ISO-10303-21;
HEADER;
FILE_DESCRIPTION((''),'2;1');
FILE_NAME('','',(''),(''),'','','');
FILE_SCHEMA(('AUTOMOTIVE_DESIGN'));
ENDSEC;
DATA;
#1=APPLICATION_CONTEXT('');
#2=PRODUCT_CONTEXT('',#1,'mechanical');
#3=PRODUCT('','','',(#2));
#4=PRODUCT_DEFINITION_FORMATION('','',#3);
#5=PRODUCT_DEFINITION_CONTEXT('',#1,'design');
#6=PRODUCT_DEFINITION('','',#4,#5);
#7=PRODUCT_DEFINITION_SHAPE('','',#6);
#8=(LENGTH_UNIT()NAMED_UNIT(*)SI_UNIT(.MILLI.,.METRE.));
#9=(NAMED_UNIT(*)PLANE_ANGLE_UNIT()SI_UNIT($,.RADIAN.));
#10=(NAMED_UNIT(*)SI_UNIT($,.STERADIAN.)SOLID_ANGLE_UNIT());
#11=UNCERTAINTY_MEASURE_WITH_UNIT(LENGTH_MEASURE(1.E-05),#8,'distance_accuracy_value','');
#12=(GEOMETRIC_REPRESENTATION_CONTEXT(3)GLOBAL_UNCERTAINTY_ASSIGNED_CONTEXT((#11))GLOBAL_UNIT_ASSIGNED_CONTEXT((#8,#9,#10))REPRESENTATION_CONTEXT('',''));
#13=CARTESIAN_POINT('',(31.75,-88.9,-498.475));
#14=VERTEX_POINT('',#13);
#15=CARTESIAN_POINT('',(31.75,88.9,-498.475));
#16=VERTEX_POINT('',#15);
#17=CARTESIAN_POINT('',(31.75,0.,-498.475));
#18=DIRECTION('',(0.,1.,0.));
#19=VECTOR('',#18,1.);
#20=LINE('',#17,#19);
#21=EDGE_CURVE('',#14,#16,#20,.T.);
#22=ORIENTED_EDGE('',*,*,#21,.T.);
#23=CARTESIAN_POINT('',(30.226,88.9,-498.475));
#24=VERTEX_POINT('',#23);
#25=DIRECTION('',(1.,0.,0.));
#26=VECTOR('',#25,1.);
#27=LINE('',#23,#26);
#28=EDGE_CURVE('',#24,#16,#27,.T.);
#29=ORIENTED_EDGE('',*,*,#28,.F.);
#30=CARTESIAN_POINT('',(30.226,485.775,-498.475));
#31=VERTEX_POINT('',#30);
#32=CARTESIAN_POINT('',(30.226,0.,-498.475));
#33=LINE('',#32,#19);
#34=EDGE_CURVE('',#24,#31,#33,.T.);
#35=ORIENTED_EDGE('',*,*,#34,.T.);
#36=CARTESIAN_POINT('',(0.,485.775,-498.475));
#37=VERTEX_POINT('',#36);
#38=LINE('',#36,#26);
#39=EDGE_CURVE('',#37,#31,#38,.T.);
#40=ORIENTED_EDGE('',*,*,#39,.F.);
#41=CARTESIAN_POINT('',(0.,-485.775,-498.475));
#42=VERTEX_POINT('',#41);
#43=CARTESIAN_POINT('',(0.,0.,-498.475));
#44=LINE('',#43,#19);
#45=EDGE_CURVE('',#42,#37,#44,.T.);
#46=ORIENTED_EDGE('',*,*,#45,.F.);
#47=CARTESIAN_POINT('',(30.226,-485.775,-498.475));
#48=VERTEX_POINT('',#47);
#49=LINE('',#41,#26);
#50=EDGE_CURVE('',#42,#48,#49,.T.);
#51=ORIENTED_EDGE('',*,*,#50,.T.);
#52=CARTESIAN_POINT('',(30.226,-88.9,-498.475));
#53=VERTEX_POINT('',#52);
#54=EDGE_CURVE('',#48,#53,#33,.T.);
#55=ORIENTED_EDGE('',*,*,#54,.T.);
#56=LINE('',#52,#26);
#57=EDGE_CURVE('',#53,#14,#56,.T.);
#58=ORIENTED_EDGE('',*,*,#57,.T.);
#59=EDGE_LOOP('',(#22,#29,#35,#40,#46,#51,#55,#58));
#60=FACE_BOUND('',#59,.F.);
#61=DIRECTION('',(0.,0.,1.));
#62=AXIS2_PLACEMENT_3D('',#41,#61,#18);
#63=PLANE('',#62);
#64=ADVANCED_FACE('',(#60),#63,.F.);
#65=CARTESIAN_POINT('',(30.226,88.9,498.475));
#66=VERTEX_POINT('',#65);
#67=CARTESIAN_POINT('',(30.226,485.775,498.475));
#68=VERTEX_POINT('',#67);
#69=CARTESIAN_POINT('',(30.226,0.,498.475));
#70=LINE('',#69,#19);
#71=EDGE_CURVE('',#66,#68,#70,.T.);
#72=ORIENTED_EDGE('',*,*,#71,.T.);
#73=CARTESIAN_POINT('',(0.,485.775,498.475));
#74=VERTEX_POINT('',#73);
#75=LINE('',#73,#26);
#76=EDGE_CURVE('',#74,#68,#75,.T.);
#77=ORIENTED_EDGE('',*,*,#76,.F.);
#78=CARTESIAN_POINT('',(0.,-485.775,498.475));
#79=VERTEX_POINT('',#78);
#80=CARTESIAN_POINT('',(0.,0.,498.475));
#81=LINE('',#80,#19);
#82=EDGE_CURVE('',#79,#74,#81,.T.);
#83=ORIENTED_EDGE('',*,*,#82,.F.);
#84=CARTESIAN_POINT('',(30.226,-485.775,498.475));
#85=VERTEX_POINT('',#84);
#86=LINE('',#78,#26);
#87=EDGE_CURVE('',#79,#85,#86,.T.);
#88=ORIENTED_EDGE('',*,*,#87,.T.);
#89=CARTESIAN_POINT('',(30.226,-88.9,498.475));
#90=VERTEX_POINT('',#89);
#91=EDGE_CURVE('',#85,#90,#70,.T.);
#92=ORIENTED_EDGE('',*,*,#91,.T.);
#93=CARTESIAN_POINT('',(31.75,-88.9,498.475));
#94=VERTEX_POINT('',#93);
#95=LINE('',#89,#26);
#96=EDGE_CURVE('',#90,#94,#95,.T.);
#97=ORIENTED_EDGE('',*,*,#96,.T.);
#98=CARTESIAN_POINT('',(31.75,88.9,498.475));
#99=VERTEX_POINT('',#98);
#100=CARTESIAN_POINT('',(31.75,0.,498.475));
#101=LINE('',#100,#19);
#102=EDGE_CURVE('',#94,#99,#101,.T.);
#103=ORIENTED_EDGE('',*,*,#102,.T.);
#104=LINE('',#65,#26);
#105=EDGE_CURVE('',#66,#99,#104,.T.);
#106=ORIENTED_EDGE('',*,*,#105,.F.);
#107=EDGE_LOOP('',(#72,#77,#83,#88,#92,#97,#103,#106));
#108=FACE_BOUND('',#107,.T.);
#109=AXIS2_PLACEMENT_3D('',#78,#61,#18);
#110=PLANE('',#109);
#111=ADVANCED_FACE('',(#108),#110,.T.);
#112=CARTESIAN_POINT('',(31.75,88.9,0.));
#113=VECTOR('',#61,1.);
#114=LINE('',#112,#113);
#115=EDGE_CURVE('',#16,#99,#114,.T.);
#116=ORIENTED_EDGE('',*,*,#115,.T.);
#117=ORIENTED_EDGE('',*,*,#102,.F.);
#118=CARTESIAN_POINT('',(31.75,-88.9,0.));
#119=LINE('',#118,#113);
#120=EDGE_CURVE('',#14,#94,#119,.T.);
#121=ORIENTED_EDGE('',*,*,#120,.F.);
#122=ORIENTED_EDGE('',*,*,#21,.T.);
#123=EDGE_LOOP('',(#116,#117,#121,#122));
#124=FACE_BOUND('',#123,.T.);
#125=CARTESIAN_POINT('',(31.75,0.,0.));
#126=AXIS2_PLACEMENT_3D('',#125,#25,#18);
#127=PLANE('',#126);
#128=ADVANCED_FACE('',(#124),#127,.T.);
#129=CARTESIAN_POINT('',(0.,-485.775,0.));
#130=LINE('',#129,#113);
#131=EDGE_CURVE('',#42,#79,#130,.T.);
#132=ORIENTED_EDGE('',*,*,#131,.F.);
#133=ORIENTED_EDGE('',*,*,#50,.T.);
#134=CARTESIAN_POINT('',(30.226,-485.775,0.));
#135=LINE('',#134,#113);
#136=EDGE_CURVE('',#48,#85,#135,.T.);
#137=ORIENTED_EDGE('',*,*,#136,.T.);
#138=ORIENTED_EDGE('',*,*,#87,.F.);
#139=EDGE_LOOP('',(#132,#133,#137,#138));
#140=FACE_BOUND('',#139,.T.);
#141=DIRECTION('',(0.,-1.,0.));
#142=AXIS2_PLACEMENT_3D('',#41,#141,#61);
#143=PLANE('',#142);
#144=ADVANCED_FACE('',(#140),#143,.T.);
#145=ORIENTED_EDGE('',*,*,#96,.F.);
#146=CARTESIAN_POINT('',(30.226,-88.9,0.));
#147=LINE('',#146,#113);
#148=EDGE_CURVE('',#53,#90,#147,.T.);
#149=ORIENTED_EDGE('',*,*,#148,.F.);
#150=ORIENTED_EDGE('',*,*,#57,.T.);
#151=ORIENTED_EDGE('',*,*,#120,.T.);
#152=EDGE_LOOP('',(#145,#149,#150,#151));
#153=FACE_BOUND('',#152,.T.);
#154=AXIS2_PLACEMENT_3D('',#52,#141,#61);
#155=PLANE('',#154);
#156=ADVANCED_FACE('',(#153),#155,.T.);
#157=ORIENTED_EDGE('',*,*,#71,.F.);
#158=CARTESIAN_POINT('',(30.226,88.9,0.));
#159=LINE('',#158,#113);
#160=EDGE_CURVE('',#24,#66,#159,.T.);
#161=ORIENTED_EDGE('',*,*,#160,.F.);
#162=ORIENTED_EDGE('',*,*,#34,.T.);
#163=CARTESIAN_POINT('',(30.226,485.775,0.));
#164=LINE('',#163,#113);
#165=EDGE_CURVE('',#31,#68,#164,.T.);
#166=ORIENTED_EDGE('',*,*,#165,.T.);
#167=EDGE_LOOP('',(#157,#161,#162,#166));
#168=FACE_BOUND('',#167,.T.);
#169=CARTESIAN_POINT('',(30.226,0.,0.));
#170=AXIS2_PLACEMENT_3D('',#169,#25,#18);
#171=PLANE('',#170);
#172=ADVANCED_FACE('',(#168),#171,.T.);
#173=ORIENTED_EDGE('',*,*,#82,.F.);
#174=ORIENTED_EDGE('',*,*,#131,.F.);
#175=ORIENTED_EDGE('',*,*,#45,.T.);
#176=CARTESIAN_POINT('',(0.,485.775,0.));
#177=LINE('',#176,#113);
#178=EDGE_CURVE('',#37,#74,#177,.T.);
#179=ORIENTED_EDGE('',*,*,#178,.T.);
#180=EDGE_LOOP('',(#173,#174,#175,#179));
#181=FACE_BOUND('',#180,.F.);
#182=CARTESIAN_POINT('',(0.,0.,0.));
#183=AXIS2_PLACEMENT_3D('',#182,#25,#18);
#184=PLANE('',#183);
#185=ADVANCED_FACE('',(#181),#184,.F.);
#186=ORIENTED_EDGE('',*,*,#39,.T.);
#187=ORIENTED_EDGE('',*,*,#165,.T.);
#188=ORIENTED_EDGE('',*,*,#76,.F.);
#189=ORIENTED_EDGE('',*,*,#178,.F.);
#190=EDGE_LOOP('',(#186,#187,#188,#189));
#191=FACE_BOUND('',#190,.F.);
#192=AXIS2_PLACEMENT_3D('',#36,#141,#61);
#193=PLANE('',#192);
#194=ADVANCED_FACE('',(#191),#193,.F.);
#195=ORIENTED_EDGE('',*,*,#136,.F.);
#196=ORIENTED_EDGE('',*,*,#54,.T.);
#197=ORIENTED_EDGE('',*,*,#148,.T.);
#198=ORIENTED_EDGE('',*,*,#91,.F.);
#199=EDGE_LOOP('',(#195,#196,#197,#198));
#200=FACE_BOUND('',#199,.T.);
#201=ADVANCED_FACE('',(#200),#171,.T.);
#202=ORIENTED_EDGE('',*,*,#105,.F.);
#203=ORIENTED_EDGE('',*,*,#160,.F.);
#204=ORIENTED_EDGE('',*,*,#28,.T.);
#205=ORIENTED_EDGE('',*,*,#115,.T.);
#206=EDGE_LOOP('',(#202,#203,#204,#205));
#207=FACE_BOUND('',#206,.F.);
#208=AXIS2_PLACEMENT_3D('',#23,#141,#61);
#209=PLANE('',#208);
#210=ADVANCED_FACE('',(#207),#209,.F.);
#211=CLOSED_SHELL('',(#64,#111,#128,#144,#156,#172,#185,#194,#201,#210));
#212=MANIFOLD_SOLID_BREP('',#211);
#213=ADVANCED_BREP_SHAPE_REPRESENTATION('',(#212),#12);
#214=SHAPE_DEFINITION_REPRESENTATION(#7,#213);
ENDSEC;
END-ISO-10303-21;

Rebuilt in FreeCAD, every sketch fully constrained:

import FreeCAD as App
import Part
import Sketcher
Q = App.Units.Quantity

doc = App.newDocument("Part")
params = doc.addObject("Spreadsheet::Sheet", "Params")
for row, (alias, value) in enumerate([
    ("sketch1_width", "38.25 in"),
    ("sketch1_height", "39.25 in"),
    ("pad1_length", "1.19 in"),
    ("sketch2_width", "7 in"),
    ("sketch2_height", "39.25 in"),
    ("pad2_length", "0.06 in"),
], start=1):
    params.set(f"A{row}", alias)
    params.set(f"B{row}", "=" + value)
    params.setAlias(f"B{row}", alias)

body = doc.addObject("PartDesign::Body", "Body")

# Sketch on YZ plane
sketch1 = body.newObject("Sketcher::SketchObject", "Sketch")
sketch1.AttachmentSupport = (doc.getObject("YZ_Plane"), [""])
sketch1.MapMode = "FlatFace"
sketch1.addGeometry([
    Part.LineSegment(App.Vector(-486, 498, 0), App.Vector(-486, -498, 0)),
    Part.LineSegment(App.Vector(-486, -498, 0), App.Vector(486, -498, 0)),
    Part.LineSegment(App.Vector(486, -498, 0), App.Vector(486, 498, 0)),
    Part.LineSegment(App.Vector(486, 498, 0), App.Vector(-486, 498, 0)),
], False)
sketch1.addConstraint([
    Sketcher.Constraint("Coincident", 0, 2, 1, 1),
    Sketcher.Constraint("Coincident", 1, 2, 2, 1),
    Sketcher.Constraint("Coincident", 2, 2, 3, 1),
    Sketcher.Constraint("Coincident", 3, 2, 0, 1),
    Sketcher.Constraint("Vertical", 0),
    Sketcher.Constraint("Horizontal", 1),
    Sketcher.Constraint("Vertical", 2),
    Sketcher.Constraint("Horizontal", 3),
    Sketcher.Constraint("Symmetric", 0, 2, 2, 2, -1, 1),
    Sketcher.Constraint("DistanceX", 1, 1, 1, 2, Q("38.25 in")),
    Sketcher.Constraint("DistanceY", 0, 2, 0, 1, Q("39.25 in")),
])
sketch1.setExpression("Constraints[9]", "Params.sketch1_width")
sketch1.setExpression("Constraints[10]", "Params.sketch1_height")
pad1 = body.newObject("PartDesign::Pad", "Pad")
pad1.Profile = sketch1
pad1.setExpression("Length", "Params.pad1_length")

# Sketch on YZ plane
sketch2 = body.newObject("Sketcher::SketchObject", "Sketch001")
sketch2.AttachmentSupport = (doc.getObject("YZ_Plane"), [""])
sketch2.MapMode = "FlatFace"
sketch2.AttachmentOffset = App.Placement(App.Vector(0, 0, 1.19 * 25.4), App.Rotation())
sketch2.addGeometry([
    Part.LineSegment(App.Vector(-89, 498, 0), App.Vector(-89, -498, 0)),
    Part.LineSegment(App.Vector(-89, -498, 0), App.Vector(89, -498, 0)),
    Part.LineSegment(App.Vector(89, -498, 0), App.Vector(89, 498, 0)),
    Part.LineSegment(App.Vector(89, 498, 0), App.Vector(-89, 498, 0)),
], False)
sketch2.addConstraint([
    Sketcher.Constraint("Coincident", 0, 2, 1, 1),
    Sketcher.Constraint("Coincident", 1, 2, 2, 1),
    Sketcher.Constraint("Coincident", 2, 2, 3, 1),
    Sketcher.Constraint("Coincident", 3, 2, 0, 1),
    Sketcher.Constraint("Vertical", 0),
    Sketcher.Constraint("Horizontal", 1),
    Sketcher.Constraint("Vertical", 2),
    Sketcher.Constraint("Horizontal", 3),
    Sketcher.Constraint("Symmetric", 0, 2, 2, 2, -1, 1),
    Sketcher.Constraint("DistanceX", 1, 1, 1, 2, Q("7 in")),
    Sketcher.Constraint("DistanceY", 0, 2, 0, 1, Q("39.25 in")),
])
sketch2.setExpression("Constraints[9]", "Params.sketch2_width")
sketch2.setExpression("Constraints[10]", "Params.sketch2_height")
pad2 = body.newObject("PartDesign::Pad", "Pad001")
pad2.Profile = sketch2
pad2.setExpression("Length", "Params.pad2_length")

doc.recompute()
